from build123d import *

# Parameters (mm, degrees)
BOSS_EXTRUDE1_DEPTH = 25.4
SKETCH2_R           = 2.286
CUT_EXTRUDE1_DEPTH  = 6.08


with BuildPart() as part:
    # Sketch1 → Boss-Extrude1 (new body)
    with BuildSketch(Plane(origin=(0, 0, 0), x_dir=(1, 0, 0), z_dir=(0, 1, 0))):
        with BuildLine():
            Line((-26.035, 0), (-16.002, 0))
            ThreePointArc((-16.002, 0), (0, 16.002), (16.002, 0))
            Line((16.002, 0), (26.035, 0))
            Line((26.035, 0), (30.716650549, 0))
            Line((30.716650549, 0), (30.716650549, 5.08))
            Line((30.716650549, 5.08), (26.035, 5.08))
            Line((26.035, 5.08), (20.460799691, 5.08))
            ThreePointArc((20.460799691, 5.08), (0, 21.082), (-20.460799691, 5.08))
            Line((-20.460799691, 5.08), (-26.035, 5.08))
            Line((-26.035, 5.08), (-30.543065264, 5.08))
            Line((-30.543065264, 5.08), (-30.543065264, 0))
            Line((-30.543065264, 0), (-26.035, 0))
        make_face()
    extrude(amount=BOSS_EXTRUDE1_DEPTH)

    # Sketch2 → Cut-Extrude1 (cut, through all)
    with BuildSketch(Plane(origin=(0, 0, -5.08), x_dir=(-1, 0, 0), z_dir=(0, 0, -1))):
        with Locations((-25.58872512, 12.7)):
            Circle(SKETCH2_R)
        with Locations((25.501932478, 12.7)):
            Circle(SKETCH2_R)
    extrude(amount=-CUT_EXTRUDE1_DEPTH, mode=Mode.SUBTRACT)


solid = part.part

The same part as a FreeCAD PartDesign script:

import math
import FreeCAD as App
import Part
import Sketcher
Q = App.Units.Quantity

doc = App.newDocument("Part")
params = doc.addObject("Spreadsheet::Sheet", "Params")
for row, (alias, value) in enumerate([
    ("sketch1_radius", "0.63 in"),
    ("sketch1_radius2", "0.83 in"),
    ("sketch1_height", "0.2 in"),
    ("pad1_length", "1 in"),
    ("sketch2_diameter", "0.18 in"),
], start=1):
    params.set(f"A{row}", alias)
    params.set(f"B{row}", "=" + value)
    params.setAlias(f"B{row}", alias)

body = doc.addObject("PartDesign::Body", "Body")

# Sketch on XZ plane
sketch1 = body.newObject("Sketcher::SketchObject", "Sketch")
sketch1.AttachmentSupport = (doc.getObject("XZ_Plane"), [""])
sketch1.MapMode = "FlatFace"
sketch1.addGeometry(Part.ArcOfCircle(Part.Circle(App.Vector(0, 0, 0), App.Vector(0, 0, 1), 16.002), math.radians(180), math.radians(360)), False)
sketch1.addGeometry(Part.LineSegment(App.Vector(16.002, 0, 0), App.Vector(30.716651, 0, 0)), False)
sketch1.addGeometry(Part.LineSegment(App.Vector(30.716651, 0, 0), App.Vector(30.716651, -5.08, 0)), False)
sketch1.addGeometry(Part.LineSegment(App.Vector(30.716651, -5.08, 0), App.Vector(20.4608, -5.08, 0)), False)
sketch1.addGeometry(Part.ArcOfCircle(Part.Circle(App.Vector(0, 0, 0), App.Vector(0, 0, 1), 21.082), math.radians(-166.056565), math.radians(-13.943435)), False)
sketch1.addGeometry(Part.LineSegment(App.Vector(-20.4608, -5.08, 0), App.Vector(-30.543065, -5.08, 0)), False)
sketch1.addGeometry(Part.LineSegment(App.Vector(-30.543065, -5.08, 0), App.Vector(-30.543065, 0, 0)), False)
sketch1.addGeometry(Part.LineSegment(App.Vector(-30.543065, 0, 0), App.Vector(-16.002, 0, 0)), False)
sketch1.addConstraint(Sketcher.Constraint("Coincident", 0, 2, 1, 1))
sketch1.addConstraint(Sketcher.Constraint("Coincident", 1, 2, 2, 1))
sketch1.addConstraint(Sketcher.Constraint("Coincident", 2, 2, 3, 1))
sketch1.addConstraint(Sketcher.Constraint("Coincident", 3, 2, 4, 2))
sketch1.addConstraint(Sketcher.Constraint("Coincident", 4, 1, 5, 1))
sketch1.addConstraint(Sketcher.Constraint("Coincident", 5, 2, 6, 1))
sketch1.addConstraint(Sketcher.Constraint("Coincident", 6, 2, 7, 1))
sketch1.addConstraint(Sketcher.Constraint("Coincident", 7, 2, 0, 1))
sketch1.addConstraint(Sketcher.Constraint("Horizontal", 1))
sketch1.addConstraint(Sketcher.Constraint("Vertical", 2))
sketch1.addConstraint(Sketcher.Constraint("Horizontal", 3))
sketch1.addConstraint(Sketcher.Constraint("Horizontal", 5))
sketch1.addConstraint(Sketcher.Constraint("Vertical", 6))
sketch1.addConstraint(Sketcher.Constraint("Horizontal", 7))
sketch1.addConstraint(Sketcher.Constraint("Coincident", 0, 3, -1, 1))
sketch1.addConstraint(Sketcher.Constraint("Coincident", 4, 3, -1, 1))
sketch1.addConstraint(Sketcher.Constraint("PointOnObject", 0, 2, -1))
sketch1.addConstraint(Sketcher.Constraint("PointOnObject", 6, 2, -1))
sketch1.addConstraint(Sketcher.Constraint("Horizontal", 3, 2, 4, 1))
sketch1.addConstraint(Sketcher.Constraint("Radius", 0, Q("0.63 in")))
sketch1.addConstraint(Sketcher.Constraint("Radius", 4, Q("0.83 in")))
sketch1.addConstraint(Sketcher.Constraint("DistanceY", 2, 2, 2, 1, Q("0.2 in")))
sketch1.addConstraint(Sketcher.Constraint("DistanceX", 1, 1, 1, 2, 14.714651))
sketch1.addConstraint(Sketcher.Constraint("DistanceX", 5, 2, 5, 1, 10.082266))
sketch1.setExpression("Constraints[19]", "Params.sketch1_radius")
sketch1.setExpression("Constraints[20]", "Params.sketch1_radius2")
sketch1.setExpression("Constraints[21]", "Params.sketch1_height")
pad1 = body.newObject("PartDesign::Pad", "Pad")
pad1.Profile = sketch1
pad1.setExpression("Length", "Params.pad1_length")
pad1.Reversed = True

# Sketch on XY plane
sketch2 = body.newObject("Sketcher::SketchObject", "Sketch001")
sketch2.AttachmentSupport = (doc.getObject("XY_Plane"), [""])
sketch2.MapMode = "FlatFace"
sketch2.AttachmentOffset = App.Placement(App.Vector(0, 0, -0.2 * 25.4), App.Rotation())
sketch2.addGeometry(Part.Circle(App.Vector(25.588725, 12.7, 0), App.Vector(0, 0, 1), 2.286), False)
sketch2.addGeometry(Part.Circle(App.Vector(-25.501932, 12.7, 0), App.Vector(0, 0, 1), 2.286), False)
sketch2.addConstraint(Sketcher.Constraint("Equal", 0, 1))
sketch2.addConstraint(Sketcher.Constraint("Horizontal", 0, 3, 1, 3))
sketch2.addConstraint(Sketcher.Constraint("Diameter", 0, Q("0.18 in")))
sketch2.addConstraint(Sketcher.Constraint("DistanceY", -1, 1, 0, 3, Q("0.5 in")))
sketch2.addConstraint(Sketcher.Constraint("DistanceX", -1, 1, 0, 3, 25.588725))
sketch2.addConstraint(Sketcher.Constraint("DistanceX", 1, 3, -1, 1, 25.501932))
sketch2.setExpression("Constraints[2]", "Params.sketch2_diameter")
pocket1 = body.newObject("PartDesign::Pocket", "Pocket")
pocket1.Profile = sketch2
pocket1.Type = "ThroughAll"
pocket1.Reversed = True

doc.recompute()
